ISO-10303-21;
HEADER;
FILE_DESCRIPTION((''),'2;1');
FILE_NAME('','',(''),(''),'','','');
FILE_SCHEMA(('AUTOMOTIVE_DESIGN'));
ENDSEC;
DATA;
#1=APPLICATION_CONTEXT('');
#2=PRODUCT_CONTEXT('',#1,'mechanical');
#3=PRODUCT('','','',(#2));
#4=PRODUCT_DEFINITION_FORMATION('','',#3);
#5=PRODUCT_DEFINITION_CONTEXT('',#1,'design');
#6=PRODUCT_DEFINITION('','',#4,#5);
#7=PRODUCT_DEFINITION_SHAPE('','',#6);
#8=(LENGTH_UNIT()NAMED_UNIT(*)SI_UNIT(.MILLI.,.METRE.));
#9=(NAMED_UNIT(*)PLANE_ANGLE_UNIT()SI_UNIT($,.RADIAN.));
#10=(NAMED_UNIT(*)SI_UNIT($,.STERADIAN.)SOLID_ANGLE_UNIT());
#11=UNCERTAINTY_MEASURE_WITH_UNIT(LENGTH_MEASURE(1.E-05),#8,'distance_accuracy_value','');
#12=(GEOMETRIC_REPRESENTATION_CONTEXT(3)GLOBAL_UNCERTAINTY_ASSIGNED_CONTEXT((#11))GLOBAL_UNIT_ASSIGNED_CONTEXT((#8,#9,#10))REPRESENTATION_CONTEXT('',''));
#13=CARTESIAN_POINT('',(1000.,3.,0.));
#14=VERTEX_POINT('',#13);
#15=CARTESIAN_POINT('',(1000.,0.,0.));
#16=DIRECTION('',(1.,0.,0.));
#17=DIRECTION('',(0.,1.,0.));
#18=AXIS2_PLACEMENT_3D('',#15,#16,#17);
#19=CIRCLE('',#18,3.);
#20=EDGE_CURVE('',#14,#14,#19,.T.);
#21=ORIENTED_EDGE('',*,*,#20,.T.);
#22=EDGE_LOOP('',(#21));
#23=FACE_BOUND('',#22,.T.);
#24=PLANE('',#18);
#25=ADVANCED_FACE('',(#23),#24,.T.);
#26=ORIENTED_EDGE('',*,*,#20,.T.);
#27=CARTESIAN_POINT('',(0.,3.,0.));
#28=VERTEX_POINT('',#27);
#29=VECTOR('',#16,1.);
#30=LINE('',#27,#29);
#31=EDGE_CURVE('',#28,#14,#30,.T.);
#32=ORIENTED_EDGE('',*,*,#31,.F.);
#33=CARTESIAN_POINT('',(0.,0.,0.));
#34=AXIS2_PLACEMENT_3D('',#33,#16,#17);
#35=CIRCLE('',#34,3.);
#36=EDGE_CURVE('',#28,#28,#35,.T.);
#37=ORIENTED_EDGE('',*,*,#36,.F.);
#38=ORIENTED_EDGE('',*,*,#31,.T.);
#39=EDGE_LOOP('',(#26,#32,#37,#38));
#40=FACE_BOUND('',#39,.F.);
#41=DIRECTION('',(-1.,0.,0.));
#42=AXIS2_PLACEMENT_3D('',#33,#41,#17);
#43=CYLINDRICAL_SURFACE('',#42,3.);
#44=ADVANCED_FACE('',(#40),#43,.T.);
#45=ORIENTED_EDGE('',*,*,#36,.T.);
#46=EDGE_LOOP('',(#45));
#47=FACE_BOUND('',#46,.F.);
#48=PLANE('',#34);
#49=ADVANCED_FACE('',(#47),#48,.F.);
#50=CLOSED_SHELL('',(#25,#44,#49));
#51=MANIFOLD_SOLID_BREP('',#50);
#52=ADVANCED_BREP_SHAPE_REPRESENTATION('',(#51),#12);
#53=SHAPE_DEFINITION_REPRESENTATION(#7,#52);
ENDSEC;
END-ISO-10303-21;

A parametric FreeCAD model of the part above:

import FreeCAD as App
import Part
import Sketcher
from FreeCAD import Vector
Q = App.Units.Quantity

doc = App.newDocument("Part")
body = doc.addObject("PartDesign::Body", "Body")

sketch1 = body.newObject("Sketcher::SketchObject", "Sketch")
sketch1.AttachmentSupport = (doc.getObject("YZ_Plane"), [""])
sketch1.MapMode = "FlatFace"
sketch1.addGeometry(Part.Circle(Vector(0, 0, 0), Vector(0, 0, 1), 3), False)
sketch1.addConstraint([
    Sketcher.Constraint("Coincident", 0, 3, -1, 1),
    Sketcher.Constraint("Diameter", 0, Q("6 mm")),
])
pad1 = body.newObject("PartDesign::Pad", "Pad")
pad1.Profile = sketch1
pad1.Length = 1000

doc.recompute()
